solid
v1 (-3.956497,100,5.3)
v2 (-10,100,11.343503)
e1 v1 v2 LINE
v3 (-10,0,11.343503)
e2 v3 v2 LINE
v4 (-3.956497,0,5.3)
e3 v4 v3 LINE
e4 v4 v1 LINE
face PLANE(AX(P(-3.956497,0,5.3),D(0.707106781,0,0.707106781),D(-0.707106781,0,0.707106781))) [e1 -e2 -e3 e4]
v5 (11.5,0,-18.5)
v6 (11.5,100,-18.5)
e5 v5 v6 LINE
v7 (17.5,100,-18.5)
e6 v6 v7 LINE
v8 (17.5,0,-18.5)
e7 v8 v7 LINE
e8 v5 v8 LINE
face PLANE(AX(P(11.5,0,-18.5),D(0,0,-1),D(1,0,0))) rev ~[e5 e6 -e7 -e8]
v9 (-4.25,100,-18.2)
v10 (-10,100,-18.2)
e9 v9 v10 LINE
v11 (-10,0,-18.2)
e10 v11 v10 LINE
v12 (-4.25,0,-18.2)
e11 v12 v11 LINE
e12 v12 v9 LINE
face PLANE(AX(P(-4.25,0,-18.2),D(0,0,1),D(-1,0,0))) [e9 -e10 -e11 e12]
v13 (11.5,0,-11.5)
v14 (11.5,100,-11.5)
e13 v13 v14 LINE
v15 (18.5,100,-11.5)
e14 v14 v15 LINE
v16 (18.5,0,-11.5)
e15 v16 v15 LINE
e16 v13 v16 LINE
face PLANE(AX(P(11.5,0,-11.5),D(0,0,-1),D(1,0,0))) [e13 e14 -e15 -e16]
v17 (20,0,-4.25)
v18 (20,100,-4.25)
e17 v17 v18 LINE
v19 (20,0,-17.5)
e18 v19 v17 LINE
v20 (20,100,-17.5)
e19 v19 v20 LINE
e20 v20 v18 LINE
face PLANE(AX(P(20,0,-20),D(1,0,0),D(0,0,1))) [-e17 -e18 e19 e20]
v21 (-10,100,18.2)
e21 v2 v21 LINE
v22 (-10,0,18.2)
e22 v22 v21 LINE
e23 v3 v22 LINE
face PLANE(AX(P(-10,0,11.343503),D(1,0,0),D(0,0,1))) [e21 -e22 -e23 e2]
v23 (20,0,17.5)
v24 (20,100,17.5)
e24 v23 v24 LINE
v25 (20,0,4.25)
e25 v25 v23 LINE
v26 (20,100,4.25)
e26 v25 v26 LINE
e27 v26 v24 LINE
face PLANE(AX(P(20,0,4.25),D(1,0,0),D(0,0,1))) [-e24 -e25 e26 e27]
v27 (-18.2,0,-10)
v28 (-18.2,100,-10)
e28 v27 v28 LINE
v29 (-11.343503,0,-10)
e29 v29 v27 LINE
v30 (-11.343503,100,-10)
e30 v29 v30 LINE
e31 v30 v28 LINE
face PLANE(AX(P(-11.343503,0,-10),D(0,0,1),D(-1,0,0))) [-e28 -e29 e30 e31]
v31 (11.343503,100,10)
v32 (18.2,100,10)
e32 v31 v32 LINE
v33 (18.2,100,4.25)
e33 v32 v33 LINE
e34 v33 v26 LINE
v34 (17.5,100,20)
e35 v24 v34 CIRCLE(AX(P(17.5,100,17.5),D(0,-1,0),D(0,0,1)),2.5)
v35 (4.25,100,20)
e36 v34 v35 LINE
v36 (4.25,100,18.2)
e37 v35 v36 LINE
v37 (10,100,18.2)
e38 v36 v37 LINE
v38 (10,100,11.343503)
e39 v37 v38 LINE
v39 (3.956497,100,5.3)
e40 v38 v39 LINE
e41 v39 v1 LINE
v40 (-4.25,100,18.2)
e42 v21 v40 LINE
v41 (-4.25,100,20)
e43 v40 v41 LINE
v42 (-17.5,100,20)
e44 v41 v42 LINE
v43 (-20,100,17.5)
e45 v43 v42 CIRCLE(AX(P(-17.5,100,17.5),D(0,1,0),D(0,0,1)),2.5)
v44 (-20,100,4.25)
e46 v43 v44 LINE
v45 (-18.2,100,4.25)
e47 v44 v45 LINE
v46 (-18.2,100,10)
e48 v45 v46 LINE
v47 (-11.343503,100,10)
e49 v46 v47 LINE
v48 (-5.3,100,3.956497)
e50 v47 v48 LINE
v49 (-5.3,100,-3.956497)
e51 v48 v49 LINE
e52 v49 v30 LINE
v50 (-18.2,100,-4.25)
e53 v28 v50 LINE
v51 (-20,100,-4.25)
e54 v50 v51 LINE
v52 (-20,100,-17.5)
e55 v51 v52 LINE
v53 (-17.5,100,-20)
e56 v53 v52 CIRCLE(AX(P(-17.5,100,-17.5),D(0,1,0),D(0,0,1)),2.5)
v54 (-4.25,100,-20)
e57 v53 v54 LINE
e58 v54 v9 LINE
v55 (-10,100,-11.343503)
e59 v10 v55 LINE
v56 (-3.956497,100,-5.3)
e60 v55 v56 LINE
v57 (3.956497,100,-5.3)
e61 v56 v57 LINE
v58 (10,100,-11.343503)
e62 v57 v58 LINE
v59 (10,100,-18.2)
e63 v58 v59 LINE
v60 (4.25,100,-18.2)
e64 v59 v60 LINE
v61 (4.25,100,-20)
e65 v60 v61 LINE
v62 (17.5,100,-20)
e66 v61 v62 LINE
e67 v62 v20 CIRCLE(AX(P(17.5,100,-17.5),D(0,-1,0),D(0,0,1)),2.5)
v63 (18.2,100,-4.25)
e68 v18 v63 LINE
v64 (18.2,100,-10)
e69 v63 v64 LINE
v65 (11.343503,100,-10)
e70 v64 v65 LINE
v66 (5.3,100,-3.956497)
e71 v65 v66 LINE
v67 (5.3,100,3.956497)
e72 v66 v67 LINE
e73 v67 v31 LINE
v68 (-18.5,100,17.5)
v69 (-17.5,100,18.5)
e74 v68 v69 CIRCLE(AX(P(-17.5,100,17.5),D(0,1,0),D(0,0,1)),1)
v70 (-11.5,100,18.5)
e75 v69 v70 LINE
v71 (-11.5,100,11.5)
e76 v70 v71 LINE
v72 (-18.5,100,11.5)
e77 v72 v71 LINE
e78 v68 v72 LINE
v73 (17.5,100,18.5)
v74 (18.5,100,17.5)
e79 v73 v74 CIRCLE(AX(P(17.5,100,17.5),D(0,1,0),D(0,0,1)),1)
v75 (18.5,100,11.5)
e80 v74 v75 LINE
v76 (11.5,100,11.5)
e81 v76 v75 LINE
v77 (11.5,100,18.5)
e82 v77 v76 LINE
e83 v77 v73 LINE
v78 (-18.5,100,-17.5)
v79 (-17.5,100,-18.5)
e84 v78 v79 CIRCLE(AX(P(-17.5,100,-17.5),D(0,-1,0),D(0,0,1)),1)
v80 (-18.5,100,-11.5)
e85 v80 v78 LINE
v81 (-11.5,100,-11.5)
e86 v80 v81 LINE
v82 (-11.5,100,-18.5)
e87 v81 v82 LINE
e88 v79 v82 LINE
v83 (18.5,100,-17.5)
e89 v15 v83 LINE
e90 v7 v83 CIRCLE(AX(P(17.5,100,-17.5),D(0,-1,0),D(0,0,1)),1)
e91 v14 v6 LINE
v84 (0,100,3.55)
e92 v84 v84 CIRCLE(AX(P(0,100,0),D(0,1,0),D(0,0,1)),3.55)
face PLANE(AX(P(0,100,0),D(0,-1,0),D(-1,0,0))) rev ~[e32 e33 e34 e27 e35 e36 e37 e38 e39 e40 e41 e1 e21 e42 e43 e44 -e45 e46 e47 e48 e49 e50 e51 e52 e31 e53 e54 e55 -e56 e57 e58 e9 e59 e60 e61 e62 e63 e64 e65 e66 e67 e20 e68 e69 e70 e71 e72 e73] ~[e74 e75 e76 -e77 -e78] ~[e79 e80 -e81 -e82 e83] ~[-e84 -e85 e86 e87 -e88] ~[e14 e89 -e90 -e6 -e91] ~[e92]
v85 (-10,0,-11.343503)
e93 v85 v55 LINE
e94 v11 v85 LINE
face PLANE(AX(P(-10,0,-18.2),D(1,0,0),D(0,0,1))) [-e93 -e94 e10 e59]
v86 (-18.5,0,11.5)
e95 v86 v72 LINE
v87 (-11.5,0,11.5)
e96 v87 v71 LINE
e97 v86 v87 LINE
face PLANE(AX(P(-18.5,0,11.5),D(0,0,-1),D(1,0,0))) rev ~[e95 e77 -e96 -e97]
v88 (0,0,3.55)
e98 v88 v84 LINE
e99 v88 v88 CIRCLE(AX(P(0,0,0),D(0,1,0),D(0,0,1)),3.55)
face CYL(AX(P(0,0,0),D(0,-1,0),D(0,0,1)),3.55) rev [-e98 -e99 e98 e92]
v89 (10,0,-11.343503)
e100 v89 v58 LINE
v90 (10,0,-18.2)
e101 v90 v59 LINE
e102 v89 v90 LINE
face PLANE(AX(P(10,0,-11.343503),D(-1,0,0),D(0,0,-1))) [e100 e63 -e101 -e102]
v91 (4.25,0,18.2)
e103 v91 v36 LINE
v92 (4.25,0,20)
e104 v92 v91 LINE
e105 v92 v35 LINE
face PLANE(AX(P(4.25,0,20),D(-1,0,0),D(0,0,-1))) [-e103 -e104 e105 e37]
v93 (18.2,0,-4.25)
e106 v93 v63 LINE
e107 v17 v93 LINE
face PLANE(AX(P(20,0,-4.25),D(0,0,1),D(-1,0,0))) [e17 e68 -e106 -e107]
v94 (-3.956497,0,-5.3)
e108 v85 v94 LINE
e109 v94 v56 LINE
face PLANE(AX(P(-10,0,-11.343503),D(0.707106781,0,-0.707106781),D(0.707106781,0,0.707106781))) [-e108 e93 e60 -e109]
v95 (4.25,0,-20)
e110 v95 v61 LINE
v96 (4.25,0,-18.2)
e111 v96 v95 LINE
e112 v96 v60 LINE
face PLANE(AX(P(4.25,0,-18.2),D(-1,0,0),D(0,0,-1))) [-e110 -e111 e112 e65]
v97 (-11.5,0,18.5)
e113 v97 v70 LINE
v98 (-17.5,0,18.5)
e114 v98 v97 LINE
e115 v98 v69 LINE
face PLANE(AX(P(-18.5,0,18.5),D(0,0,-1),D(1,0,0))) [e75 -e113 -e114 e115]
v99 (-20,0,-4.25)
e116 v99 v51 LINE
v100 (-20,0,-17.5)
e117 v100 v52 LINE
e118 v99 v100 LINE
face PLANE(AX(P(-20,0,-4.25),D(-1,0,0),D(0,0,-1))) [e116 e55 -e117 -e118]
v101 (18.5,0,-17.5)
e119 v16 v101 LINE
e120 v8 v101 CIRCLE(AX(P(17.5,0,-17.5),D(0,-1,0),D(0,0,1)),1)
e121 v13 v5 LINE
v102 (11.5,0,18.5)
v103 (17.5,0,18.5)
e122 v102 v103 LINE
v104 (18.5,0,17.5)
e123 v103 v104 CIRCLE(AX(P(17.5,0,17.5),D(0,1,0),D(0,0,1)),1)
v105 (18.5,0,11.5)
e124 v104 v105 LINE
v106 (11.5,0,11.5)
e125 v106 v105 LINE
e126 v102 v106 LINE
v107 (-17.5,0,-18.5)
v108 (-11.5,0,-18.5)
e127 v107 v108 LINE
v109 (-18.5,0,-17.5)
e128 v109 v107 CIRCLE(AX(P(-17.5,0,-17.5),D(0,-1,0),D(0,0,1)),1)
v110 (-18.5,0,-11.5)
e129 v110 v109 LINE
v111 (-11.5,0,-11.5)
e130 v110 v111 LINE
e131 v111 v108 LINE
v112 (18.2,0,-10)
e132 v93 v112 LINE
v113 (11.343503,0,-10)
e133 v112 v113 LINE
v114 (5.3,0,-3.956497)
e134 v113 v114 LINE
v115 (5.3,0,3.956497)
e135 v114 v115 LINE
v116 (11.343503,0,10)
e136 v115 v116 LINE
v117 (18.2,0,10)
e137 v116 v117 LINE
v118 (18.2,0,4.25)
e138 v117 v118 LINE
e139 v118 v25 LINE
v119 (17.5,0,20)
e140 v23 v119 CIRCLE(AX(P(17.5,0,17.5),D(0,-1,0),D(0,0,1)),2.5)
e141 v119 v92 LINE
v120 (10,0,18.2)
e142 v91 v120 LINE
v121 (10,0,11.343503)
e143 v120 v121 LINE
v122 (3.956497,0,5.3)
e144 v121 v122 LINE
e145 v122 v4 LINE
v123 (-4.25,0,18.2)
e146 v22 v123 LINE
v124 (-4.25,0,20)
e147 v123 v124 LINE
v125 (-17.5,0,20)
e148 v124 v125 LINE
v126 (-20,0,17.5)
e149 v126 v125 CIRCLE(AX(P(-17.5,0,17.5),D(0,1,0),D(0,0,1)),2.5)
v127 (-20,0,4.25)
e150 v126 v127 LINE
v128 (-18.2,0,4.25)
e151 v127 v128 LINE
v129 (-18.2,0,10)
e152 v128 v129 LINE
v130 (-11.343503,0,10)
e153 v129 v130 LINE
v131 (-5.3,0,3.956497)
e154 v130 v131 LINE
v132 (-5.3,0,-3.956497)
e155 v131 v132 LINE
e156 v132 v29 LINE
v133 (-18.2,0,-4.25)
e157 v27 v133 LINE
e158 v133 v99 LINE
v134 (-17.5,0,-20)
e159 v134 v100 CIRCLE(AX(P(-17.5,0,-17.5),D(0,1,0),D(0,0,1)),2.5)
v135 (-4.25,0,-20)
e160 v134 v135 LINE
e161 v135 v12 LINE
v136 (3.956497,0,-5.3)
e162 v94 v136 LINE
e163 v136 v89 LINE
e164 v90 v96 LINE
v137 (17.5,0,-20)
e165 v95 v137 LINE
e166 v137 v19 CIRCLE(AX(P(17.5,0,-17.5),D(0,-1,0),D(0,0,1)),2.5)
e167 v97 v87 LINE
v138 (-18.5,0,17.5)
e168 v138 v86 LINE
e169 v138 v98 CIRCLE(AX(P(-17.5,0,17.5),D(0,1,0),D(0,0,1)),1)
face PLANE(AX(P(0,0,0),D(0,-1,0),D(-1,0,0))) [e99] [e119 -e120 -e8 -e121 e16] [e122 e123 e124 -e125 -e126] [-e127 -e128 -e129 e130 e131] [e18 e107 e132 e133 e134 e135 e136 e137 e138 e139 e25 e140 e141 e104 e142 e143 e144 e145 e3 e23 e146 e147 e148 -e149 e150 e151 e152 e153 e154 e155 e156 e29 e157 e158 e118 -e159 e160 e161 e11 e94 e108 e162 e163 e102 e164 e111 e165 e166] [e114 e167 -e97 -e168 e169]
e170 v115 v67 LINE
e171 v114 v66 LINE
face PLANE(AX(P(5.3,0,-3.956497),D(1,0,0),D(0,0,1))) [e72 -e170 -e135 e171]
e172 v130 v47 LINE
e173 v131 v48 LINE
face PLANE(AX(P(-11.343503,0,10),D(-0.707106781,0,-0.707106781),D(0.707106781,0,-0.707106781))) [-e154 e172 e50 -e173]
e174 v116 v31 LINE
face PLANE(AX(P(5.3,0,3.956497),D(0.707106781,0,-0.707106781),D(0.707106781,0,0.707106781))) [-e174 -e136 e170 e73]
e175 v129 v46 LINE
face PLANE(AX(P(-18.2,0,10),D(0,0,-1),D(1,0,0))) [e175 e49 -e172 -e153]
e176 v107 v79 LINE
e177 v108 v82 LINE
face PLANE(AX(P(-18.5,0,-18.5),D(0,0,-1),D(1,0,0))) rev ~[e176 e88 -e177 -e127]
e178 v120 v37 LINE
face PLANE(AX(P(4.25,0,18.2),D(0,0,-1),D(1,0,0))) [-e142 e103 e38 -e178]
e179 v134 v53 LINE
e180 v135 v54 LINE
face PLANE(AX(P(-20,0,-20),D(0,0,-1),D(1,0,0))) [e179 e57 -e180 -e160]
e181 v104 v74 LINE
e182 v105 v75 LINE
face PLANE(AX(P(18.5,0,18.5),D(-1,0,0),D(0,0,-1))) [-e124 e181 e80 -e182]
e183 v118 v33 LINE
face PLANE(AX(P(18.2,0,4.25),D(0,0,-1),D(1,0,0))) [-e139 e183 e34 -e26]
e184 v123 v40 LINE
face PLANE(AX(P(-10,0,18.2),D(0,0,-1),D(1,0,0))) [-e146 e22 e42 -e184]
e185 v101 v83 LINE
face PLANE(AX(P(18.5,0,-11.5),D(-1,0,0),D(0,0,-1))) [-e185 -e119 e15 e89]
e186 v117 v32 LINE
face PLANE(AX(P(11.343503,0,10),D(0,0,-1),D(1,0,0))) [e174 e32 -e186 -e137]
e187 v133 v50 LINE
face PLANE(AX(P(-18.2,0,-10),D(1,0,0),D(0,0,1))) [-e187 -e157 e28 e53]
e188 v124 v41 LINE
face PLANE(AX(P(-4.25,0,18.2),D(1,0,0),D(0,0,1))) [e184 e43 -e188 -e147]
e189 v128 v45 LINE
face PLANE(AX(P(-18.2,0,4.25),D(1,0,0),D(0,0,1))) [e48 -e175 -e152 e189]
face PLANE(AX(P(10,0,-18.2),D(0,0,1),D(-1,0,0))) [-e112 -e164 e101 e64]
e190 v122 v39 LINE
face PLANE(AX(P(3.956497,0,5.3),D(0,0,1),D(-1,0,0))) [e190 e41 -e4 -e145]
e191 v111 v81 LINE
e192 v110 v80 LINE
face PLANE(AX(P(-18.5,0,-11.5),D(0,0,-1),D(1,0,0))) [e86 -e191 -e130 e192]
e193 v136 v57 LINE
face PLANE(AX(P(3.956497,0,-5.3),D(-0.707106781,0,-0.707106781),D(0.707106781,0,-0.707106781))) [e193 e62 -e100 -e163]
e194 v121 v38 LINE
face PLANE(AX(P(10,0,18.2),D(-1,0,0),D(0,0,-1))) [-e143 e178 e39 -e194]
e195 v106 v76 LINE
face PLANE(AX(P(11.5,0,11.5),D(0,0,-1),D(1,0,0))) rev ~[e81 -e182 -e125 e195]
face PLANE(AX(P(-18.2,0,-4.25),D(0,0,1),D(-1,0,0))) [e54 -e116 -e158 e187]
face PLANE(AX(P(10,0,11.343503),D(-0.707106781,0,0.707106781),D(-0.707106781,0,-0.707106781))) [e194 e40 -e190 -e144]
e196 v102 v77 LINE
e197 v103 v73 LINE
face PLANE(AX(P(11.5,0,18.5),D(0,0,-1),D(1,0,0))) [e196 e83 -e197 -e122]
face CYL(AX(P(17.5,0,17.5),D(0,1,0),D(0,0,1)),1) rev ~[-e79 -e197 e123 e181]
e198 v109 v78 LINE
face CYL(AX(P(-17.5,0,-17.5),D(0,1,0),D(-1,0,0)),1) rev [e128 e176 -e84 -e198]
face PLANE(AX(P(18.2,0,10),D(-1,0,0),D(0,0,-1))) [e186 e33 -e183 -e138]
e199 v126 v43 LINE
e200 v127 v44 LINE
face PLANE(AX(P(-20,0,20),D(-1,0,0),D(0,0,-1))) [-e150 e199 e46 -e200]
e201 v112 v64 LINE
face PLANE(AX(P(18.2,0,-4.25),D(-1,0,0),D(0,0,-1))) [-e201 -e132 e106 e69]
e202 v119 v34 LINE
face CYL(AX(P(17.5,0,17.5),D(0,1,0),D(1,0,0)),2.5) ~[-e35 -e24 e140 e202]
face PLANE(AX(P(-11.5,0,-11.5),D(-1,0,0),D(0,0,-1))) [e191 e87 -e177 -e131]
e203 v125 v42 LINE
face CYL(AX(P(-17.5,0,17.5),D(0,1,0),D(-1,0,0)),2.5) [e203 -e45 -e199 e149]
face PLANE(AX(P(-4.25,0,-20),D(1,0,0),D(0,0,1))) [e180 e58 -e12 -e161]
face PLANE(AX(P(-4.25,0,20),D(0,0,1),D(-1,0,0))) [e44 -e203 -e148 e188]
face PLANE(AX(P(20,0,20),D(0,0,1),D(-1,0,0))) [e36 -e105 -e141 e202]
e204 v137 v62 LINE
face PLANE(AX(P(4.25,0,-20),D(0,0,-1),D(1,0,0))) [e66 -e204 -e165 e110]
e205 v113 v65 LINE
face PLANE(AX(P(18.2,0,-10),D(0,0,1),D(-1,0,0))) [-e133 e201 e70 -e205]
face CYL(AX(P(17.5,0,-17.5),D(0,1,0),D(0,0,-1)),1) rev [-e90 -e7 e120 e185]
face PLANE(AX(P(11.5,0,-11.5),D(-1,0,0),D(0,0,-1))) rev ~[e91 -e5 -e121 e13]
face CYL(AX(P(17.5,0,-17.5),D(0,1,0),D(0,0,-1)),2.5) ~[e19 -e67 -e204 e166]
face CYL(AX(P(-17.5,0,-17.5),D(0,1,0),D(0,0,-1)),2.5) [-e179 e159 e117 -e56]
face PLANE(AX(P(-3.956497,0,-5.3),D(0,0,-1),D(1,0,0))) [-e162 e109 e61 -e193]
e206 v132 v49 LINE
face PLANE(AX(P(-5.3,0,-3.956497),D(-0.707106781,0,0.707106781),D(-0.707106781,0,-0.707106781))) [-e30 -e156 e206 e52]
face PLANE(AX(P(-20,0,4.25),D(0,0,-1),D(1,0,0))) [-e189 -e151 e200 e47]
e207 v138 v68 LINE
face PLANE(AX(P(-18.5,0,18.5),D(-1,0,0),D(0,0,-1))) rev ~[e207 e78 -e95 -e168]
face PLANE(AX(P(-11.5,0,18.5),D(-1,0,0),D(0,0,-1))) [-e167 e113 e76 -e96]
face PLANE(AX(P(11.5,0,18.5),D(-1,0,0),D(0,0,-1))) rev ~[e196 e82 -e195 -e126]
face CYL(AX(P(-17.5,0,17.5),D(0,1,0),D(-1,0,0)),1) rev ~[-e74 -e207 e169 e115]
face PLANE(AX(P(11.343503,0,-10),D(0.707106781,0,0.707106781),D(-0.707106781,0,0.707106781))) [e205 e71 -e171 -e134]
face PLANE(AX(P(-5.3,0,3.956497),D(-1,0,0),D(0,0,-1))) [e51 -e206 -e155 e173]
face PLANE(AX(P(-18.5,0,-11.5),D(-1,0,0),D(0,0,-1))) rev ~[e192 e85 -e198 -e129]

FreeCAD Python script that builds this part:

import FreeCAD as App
import Part
import Sketcher
from FreeCAD import Vector
Q = App.Units.Quantity


def edges_at(feature, points):
    """Names of the edges that pass closest to the given points."""
    edges = feature.Shape.Edges
    near = lambda p: min(range(len(edges)), key=lambda i: edges[i].distToShape(Part.Vertex(*p))[0])
    return sorted({f"Edge{near(p) + 1}" for p in points})


def add_polygon(sketch, points):
    """Adds a closed chain of lines whose ends are joined by coincident constraints."""
    first, n = sketch.GeometryCount, len(points)
    for a, b in zip(points, points[1:] + points[:1]):
        sketch.addGeometry(Part.LineSegment(App.Vector(*a, 0), App.Vector(*b, 0)), False)
    for i in range(n):
        sketch.addConstraint(Sketcher.Constraint("Coincident", first + i, 2, first + (i + 1) % n, 1))

doc = App.newDocument("Part")
body = doc.addObject("PartDesign::Body", "Body")

# Sketch on XZ plane
sketch1 = body.newObject("Sketcher::SketchObject", "Sketch")
sketch1.AttachmentSupport = (doc.getObject("XZ_Plane"), [""])
sketch1.MapMode = "FlatFace"
add_polygon(sketch1, [(-4.2, -20), (-20, -20), (-20, -4.2), (-18.2, -4.2), (-18.2, -10), (-11.3, -10), (-5.3, -4), (-5.3, 4), (-11.3, 10), (-18.2, 10), (-18.2, 4.2), (-20, 4.2), (-20, 20), (-4.2, 20), (-4.2, 18.2), (-10, 18.2), (-10, 11.3), (-4, 5.3), (4, 5.3), (10, 11.3), (10, 18.2), (4.2, 18.2), (4.2, 20), (20, 20), (20, 4.2), (18.2, 4.2), (18.2, 10), (11.3, 10), (5.3, 4), (5.3, -4), (11.3, -10), (18.2, -10), (18.2, -4.2), (20, -4.2), (20, -20), (4.2, -20), (4.2, -18.2), (10, -18.2), (10, -11.3), (4, -5.3), (-4, -5.3), (-10, -11.3), (-10, -18.2), (-4.2, -18.2)])  # lines 0-43
add_polygon(sketch1, [(11.5, 18.5), (11.5, 11.5), (18.5, 11.5), (18.5, 18.5)])  # lines 44-47
add_polygon(sketch1, [(-18.5, 18.5), (-18.5, 11.5), (-11.5, 11.5), (-11.5, 18.5)])  # lines 48-51
add_polygon(sketch1, [(11.5, -11.5), (11.5, -18.5), (18.5, -18.5), (18.5, -11.5)])  # lines 52-55
sketch1.addGeometry(Part.Circle(Vector(0, 0, 0), Vector(0, 0, 1), 3.5), False)  # 56
add_polygon(sketch1, [(-18.5, -11.5), (-18.5, -18.5), (-11.5, -18.5), (-11.5, -11.5)])  # lines 57-60
sketch1.addConstraint([
    Sketcher.Constraint("Horizontal", 0),
    Sketcher.Constraint("Vertical", 1),
    Sketcher.Constraint("Horizontal", 2),
    Sketcher.Constraint("Vertical", 3),
    Sketcher.Constraint("Horizontal", 4),
    Sketcher.Constraint("Vertical", 6),
    Sketcher.Constraint("Horizontal", 8),
    Sketcher.Constraint("Vertical", 9),
    Sketcher.Constraint("Horizontal", 10),
    Sketcher.Constraint("Vertical", 11),
    Sketcher.Constraint("Horizontal", 12),
    Sketcher.Constraint("Vertical", 13),
    Sketcher.Constraint("Horizontal", 14),
    Sketcher.Constraint("Vertical", 15),
    Sketcher.Constraint("Horizontal", 17),
    Sketcher.Constraint("Vertical", 19),
    Sketcher.Constraint("Horizontal", 20),
    Sketcher.Constraint("Vertical", 21),
    Sketcher.Constraint("Horizontal", 22),
    Sketcher.Constraint("Vertical", 23),
    Sketcher.Constraint("Horizontal", 24),
    Sketcher.Constraint("Vertical", 25),
    Sketcher.Constraint("Horizontal", 26),
    Sketcher.Constraint("Vertical", 28),
    Sketcher.Constraint("Horizontal", 30),
    Sketcher.Constraint("Vertical", 31),
    Sketcher.Constraint("Horizontal", 32),
    Sketcher.Constraint("Vertical", 33),
    Sketcher.Constraint("Horizontal", 34),
    Sketcher.Constraint("Vertical", 35),
    Sketcher.Constraint("Horizontal", 36),
    Sketcher.Constraint("Vertical", 37),
    Sketcher.Constraint("Horizontal", 39),
    Sketcher.Constraint("Vertical", 41),
    Sketcher.Constraint("Horizontal", 42),
    Sketcher.Constraint("Vertical", 43),
    Sketcher.Constraint("Vertical", 44),
    Sketcher.Constraint("Horizontal", 45),
    Sketcher.Constraint("Vertical", 46),
    Sketcher.Constraint("Horizontal", 47),
    Sketcher.Constraint("Vertical", 48),
    Sketcher.Constraint("Horizontal", 49),
    Sketcher.Constraint("Vertical", 50),
    Sketcher.Constraint("Horizontal", 51),
    Sketcher.Constraint("Vertical", 52),
    Sketcher.Constraint("Horizontal", 53),
    Sketcher.Constraint("Vertical", 54),
    Sketcher.Constraint("Horizontal", 55),
    Sketcher.Constraint("Vertical", 57),
    Sketcher.Constraint("Horizontal", 58),
    Sketcher.Constraint("Vertical", 59),
    Sketcher.Constraint("Horizontal", 60),
    Sketcher.Constraint("Coincident", 56, 3, -1, 1),
    Sketcher.Constraint("Symmetric", 0, 2, 22, 2, -1, 1),
    Sketcher.Constraint("Symmetric", 2, 2, 24, 2, -1, 1),
    Sketcher.Constraint("Symmetric", 4, 2, 26, 2, -1, 1),
    Sketcher.Constraint("Symmetric", 5, 2, 27, 2, -1, 1),
    Sketcher.Constraint("Symmetric", 7, 2, 29, 2, -1, 1),
    Sketcher.Constraint("Symmetric", 9, 2, 31, 2, -1, 1),
    Sketcher.Constraint("Symmetric", 11, 2, 33, 2, -1, 1),
    Sketcher.Constraint("Symmetric", 13, 2, 35, 2, -1, 1),
    Sketcher.Constraint("Symmetric", 15, 2, 37, 2, -1, 1),
    Sketcher.Constraint("Symmetric", 16, 2, 38, 2, -1, 1),
    Sketcher.Constraint("Symmetric", 18, 2, 40, 2, -1, 1),
    Sketcher.Constraint("Symmetric", 20, 2, 42, 2, -1, 1),
    Sketcher.Constraint("Symmetric", 50, 2, 52, 2, -1, 1),
    Sketcher.Constraint("Symmetric", 48, 2, 54, 2, -1, 1),
    Sketcher.Constraint("Symmetric", 46, 2, 57, 2, -1, 1),
    Sketcher.Constraint("Symmetric", 44, 2, 59, 2, -1, 1),
    Sketcher.Constraint("Symmetric", 15, 2, 18, 2, -2),
    Sketcher.Constraint("Symmetric", 13, 2, 20, 2, -2),
    Sketcher.Constraint("Symmetric", 11, 2, 22, 2, -2),
    Sketcher.Constraint("Symmetric", 9, 2, 24, 2, -2),
    Sketcher.Constraint("Symmetric", 7, 2, 26, 2, -2),
    Sketcher.Constraint("Symmetric", 45, 2, 48, 2, -2),
    Sketcher.Constraint("Symmetric", 47, 2, 50, 2, -2),
    Sketcher.Constraint("Perpendicular", 5, 7),
    Sketcher.Constraint("Parallel", 7, 16),
    Sketcher.Constraint("Perpendicular", 16, 18),
    Sketcher.Constraint("Perpendicular", 27, 29),
    Sketcher.Constraint("Perpendicular", 38, 40),
    Sketcher.Constraint("Horizontal", 6, 2, 27, 2),
    Sketcher.Constraint("Equal", 34, 1),
    Sketcher.Constraint("Equal", 42, 3),
    Sketcher.Constraint("Equal", 39, 6),
    Sketcher.Constraint("Equal", 32, 13),
    Sketcher.Constraint("Equal", 30, 15),
    Sketcher.Constraint("Equal", 60, 44),
    Sketcher.Constraint("Equal", 7, 16),
    Sketcher.Constraint("Diameter", 56, Q("7.1 mm")),
    Sketcher.Constraint("DistanceX", 45, 1, 45, 2, Q("7 mm")),
    Sketcher.Constraint("DistanceX", 2, 1, 2, 2, Q("1.8 mm")),
    Sketcher.Constraint("DistanceX", 0, 2, -1, 1, Q("20 mm")),
    Sketcher.Constraint("DistanceY", 3, 2, -1, 1, Q("10 mm")),
    Sketcher.Constraint("DistanceX", 0, 2, 0, 1, Q("15.75 mm")),
    Sketcher.Constraint("DistanceX", 5, 2, -1, 1, Q("5.3 mm")),
    Sketcher.Constraint("DistanceX", -1, 1, 44, 2, Q("11.5 mm")),
    Sketcher.Constraint("DistanceY", -1, 1, 44, 2, Q("11.5 mm")),
    Sketcher.Constraint("DistanceX", 4, 1, 4, 2, Q("6.856497 mm")),
])
pad1 = body.newObject("PartDesign::Pad", "Pad")
pad1.Profile = sketch1
pad1.Length = 100
pad1.Reversed = True
doc.recompute()

fillet = body.newObject("PartDesign::Fillet", "Fillet")
fillet.Base = (pad1, edges_at(pad1, [
    (-18.5, 50, -18.5),
    (18.5, 50, -18.5),
    (18.5, 50, 18.5),
    (-18.5, 50, 18.5),
]))
fillet.Radius = 1
doc.recompute()

fillet2 = body.newObject("PartDesign::Fillet", "Fillet001")
fillet2.Base = (fillet, edges_at(fillet, [
    (-20, 50, -20),
    (20, 50, -20),
    (20, 50, 20),
    (-20, 50, 20),
]))
fillet2.Radius = 2.5

doc.recompute()
